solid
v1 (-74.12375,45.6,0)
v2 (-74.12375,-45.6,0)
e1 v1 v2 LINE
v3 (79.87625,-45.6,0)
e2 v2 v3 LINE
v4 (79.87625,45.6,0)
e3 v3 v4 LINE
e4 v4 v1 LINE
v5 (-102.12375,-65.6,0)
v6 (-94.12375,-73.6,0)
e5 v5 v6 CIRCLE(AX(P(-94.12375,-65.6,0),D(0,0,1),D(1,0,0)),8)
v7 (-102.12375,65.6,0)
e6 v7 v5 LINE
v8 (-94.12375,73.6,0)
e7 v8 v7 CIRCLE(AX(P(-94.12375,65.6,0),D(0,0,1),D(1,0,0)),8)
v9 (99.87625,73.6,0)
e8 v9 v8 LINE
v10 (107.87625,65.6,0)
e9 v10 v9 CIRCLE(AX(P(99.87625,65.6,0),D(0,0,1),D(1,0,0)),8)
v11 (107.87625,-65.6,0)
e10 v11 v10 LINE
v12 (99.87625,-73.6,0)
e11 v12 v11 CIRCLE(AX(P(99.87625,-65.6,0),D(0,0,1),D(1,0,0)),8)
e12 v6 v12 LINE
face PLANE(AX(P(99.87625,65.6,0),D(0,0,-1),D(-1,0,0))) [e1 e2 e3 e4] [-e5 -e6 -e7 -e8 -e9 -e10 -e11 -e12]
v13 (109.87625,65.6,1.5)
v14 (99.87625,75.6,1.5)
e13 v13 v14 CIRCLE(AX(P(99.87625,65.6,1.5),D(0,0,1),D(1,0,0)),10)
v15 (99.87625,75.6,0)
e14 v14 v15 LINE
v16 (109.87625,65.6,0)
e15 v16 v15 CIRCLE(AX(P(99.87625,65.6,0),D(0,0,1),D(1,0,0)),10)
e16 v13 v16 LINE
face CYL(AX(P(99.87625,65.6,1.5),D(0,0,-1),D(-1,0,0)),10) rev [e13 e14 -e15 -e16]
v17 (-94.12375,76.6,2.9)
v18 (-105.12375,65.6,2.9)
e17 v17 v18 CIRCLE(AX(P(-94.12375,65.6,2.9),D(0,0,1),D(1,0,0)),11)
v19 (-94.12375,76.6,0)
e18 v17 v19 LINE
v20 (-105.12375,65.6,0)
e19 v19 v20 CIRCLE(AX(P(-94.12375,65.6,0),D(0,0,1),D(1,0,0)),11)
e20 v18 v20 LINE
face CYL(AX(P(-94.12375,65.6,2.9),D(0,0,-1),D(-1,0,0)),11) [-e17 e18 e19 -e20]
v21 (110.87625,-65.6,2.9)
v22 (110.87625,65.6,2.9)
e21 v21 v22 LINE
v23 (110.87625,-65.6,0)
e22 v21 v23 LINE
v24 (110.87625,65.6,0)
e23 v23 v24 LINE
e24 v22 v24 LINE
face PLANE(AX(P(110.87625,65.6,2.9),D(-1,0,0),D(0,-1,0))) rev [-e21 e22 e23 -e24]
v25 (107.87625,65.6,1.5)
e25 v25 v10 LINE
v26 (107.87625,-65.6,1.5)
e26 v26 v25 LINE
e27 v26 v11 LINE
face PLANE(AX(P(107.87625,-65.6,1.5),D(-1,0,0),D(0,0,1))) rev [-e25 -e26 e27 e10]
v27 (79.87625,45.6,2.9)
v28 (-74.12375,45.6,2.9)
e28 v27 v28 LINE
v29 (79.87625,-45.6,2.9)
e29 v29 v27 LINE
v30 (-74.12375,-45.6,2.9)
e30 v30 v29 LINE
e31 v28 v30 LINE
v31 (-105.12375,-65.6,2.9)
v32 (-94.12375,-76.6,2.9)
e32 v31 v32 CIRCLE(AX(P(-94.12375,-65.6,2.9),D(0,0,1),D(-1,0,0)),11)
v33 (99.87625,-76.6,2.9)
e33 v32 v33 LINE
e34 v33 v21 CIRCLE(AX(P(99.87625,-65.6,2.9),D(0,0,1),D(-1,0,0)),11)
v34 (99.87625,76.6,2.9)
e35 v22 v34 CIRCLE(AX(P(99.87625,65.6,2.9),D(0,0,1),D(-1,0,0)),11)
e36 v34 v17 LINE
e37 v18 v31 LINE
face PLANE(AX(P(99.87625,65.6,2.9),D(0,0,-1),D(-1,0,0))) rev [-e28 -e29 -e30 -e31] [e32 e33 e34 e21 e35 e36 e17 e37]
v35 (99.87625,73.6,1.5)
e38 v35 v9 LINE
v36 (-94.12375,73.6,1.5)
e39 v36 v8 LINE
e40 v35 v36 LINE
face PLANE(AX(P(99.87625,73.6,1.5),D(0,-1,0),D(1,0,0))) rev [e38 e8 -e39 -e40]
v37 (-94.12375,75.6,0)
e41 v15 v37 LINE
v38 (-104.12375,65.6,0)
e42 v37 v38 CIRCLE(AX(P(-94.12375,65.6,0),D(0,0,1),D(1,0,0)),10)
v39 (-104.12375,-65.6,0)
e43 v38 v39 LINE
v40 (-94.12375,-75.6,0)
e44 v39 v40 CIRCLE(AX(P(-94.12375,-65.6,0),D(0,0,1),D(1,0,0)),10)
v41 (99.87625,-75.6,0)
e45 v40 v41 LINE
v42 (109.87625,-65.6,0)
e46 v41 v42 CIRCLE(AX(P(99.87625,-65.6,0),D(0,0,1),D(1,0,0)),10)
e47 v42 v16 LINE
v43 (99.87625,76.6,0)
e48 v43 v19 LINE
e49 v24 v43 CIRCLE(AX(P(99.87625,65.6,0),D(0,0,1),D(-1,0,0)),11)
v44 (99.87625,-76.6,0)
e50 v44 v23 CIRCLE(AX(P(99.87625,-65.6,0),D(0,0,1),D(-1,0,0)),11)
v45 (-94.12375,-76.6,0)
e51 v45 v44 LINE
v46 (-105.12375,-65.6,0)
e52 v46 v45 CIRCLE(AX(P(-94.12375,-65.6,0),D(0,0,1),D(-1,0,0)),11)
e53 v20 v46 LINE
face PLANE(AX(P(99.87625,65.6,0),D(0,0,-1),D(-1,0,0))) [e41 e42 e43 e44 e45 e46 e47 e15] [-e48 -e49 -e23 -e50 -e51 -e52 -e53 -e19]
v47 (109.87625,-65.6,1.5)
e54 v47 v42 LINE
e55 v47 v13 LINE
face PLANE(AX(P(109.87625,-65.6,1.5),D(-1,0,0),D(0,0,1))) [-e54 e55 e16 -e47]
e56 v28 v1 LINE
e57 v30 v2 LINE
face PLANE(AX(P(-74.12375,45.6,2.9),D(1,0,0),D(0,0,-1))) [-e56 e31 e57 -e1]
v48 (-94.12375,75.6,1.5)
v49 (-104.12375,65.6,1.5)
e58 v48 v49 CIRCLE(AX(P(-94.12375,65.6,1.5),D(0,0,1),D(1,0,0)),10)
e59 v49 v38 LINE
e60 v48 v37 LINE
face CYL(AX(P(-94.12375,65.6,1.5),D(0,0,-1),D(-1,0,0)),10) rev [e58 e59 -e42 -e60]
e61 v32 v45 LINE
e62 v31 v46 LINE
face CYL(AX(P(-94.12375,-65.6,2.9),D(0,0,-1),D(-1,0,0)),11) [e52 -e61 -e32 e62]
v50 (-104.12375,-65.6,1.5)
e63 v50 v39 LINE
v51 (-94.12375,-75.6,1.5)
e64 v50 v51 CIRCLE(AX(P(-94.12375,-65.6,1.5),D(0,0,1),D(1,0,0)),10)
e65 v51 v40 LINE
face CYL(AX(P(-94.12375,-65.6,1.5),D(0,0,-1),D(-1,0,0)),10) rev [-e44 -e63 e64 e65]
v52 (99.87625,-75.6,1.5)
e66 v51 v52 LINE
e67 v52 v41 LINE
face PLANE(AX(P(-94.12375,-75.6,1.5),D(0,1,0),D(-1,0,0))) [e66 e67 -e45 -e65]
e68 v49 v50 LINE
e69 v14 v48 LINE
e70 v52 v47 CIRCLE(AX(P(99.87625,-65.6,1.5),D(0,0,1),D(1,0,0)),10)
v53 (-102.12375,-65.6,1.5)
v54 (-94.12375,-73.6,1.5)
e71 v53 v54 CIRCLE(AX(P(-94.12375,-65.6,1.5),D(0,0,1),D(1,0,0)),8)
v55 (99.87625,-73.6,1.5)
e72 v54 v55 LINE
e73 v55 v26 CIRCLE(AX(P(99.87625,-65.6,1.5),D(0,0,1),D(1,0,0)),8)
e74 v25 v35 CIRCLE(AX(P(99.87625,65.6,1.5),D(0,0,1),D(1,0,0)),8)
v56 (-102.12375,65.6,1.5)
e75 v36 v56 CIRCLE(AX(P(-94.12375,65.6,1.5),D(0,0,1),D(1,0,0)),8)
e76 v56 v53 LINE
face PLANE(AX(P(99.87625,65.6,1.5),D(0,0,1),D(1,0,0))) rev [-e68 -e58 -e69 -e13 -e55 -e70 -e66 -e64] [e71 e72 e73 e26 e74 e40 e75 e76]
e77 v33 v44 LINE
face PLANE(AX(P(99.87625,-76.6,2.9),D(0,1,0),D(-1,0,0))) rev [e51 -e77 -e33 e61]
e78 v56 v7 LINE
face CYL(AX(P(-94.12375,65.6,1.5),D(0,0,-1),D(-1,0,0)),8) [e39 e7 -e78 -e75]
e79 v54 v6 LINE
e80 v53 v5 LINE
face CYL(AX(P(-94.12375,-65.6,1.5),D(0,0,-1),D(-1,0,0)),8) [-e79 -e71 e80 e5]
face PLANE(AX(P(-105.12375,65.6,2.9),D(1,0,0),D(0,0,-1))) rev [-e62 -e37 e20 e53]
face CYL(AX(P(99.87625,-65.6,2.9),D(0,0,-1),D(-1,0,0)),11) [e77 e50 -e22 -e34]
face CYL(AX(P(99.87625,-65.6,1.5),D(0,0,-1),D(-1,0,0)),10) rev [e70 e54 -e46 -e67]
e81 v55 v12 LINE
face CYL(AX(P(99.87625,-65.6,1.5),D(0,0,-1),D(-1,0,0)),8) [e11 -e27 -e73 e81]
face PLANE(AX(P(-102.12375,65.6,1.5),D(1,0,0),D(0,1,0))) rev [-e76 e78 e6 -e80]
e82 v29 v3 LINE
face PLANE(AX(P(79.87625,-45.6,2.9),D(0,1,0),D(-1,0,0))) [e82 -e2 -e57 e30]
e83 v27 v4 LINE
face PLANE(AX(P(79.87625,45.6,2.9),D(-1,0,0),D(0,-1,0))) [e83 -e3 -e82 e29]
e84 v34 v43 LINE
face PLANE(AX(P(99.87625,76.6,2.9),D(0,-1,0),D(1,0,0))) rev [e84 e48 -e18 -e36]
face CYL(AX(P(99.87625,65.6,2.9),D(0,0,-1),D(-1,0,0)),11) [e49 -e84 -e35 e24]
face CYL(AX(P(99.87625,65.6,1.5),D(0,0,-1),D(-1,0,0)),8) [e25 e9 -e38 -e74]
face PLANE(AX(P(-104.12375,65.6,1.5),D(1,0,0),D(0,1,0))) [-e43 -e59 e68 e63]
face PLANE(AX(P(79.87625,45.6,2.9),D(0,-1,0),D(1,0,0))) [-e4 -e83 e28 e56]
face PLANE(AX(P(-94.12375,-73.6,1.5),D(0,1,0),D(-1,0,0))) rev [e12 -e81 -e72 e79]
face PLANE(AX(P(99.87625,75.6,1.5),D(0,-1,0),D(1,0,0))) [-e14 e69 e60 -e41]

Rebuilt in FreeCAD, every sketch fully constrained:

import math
import FreeCAD as App
import Part
import Sketcher
from FreeCAD import Vector
Q = App.Units.Quantity

doc = App.newDocument("Part")
params = doc.addObject("Spreadsheet::Sheet", "Params")
for row, (alias, value) in enumerate([
    ("sketch1_radius", "11 mm"),
    ("sketch1_width", "194 mm"),
    ("sketch1_width2", "154 mm"),
    ("sketch1_height", "131.2 mm"),
    ("sketch1_height2", "91.2 mm"),
    ("pad1_length", "2.9 mm"),
    ("sketch2_radius", "10 mm"),
    ("sketch2_radius2", "8 mm"),
    ("sketch2_width", "194 mm"),
    ("sketch2_height", "131.2 mm"),
    ("pocket1_length", "1.5 mm"),
], start=1):
    params.set(f"A{row}", alias)
    params.set(f"B{row}", "=" + value)
    params.setAlias(f"B{row}", alias)

body = doc.addObject("PartDesign::Body", "Body")

sketch1 = doc.addObject("Sketcher::SketchObject", "Sketch")
body.addObject(sketch1)
sketch1.AttachmentSupport = (doc.XY_Plane, [""])
sketch1.MapMode = "FlatFace"
sketch1.addGeometry([
    Part.LineSegment(Vector(100, 77, 0), Vector(-94, 77, 0)),
    Part.ArcOfCircle(Part.Circle(Vector(-94, 66, 0), Vector(0, 0, 1), 11), math.radians(90), math.radians(180)),
    Part.LineSegment(Vector(-105, 66, 0), Vector(-105, -66, 0)),
    Part.ArcOfCircle(Part.Circle(Vector(-94, -66, 0), Vector(0, 0, 1), 11), math.radians(180), math.radians(270)),
    Part.LineSegment(Vector(-94, -77, 0), Vector(100, -77, 0)),
    Part.ArcOfCircle(Part.Circle(Vector(100, -66, 0), Vector(0, 0, 1), 11), math.radians(-90), math.radians(0)),
    Part.LineSegment(Vector(111, -66, 0), Vector(111, 66, 0)),
    Part.ArcOfCircle(Part.Circle(Vector(100, 66, 0), Vector(0, 0, 1), 11), math.radians(0), math.radians(90)),
    Part.LineSegment(Vector(80, -46, 0), Vector(-74, -46, 0)),
    Part.LineSegment(Vector(-74, -46, 0), Vector(-74, 46, 0)),
    Part.LineSegment(Vector(-74, 46, 0), Vector(80, 46, 0)),
    Part.LineSegment(Vector(80, 46, 0), Vector(80, -46, 0)),
], False)
sketch1.addConstraint([
    Sketcher.Constraint("Tangent", 0, 2, 1, 1),
    Sketcher.Constraint("Tangent", 1, 2, 2, 1),
    Sketcher.Constraint("Tangent", 2, 2, 3, 1),
    Sketcher.Constraint("Tangent", 3, 2, 4, 1),
    Sketcher.Constraint("Tangent", 4, 2, 5, 1),
    Sketcher.Constraint("Tangent", 5, 2, 6, 1),
    Sketcher.Constraint("Tangent", 6, 2, 7, 1),
    Sketcher.Constraint("Tangent", 7, 2, 0, 1),
    Sketcher.Constraint("Coincident", 8, 2, 9, 1),
    Sketcher.Constraint("Coincident", 9, 2, 10, 1),
    Sketcher.Constraint("Coincident", 10, 2, 11, 1),
    Sketcher.Constraint("Coincident", 11, 2, 8, 1),
    Sketcher.Constraint("Horizontal", 0),
    Sketcher.Constraint("Vertical", 2),
    Sketcher.Constraint("Horizontal", 4),
    Sketcher.Constraint("Vertical", 6),
    Sketcher.Constraint("Horizontal", 8),
    Sketcher.Constraint("Vertical", 9),
    Sketcher.Constraint("Horizontal", 10),
    Sketcher.Constraint("Vertical", 11),
    Sketcher.Constraint("Equal", 1, 3),
    Sketcher.Constraint("Equal", 3, 5),
    Sketcher.Constraint("Equal", 5, 7),
    Sketcher.Constraint("Radius", 1, Q("11 mm")),
    Sketcher.Constraint("DistanceX", 0, 2, 0, 1, Q("194 mm")),
    Sketcher.Constraint("DistanceX", 8, 2, 8, 1, Q("154 mm")),
    Sketcher.Constraint("DistanceY", 2, 2, 2, 1, Q("131.2 mm")),
    Sketcher.Constraint("DistanceY", 9, 1, 9, 2, Q("91.2 mm")),
    Sketcher.Constraint("DistanceX", 3, 3, 8, 2, Q("20 mm")),
    Sketcher.Constraint("DistanceY", 3, 3, 8, 2, Q("20 mm")),
    Sketcher.Constraint("DistanceY", -1, 1, 1, 3, Q("65.6 mm")),
    Sketcher.Constraint("DistanceX", 1, 3, -1, 1, Q("94.12375 mm")),
])
sketch1.setExpression("Constraints[23]", "Params.sketch1_radius")
sketch1.setExpression("Constraints[24]", "Params.sketch1_width")
sketch1.setExpression("Constraints[25]", "Params.sketch1_width2")
sketch1.setExpression("Constraints[26]", "Params.sketch1_height")
sketch1.setExpression("Constraints[27]", "Params.sketch1_height2")
pad1 = doc.addObject("PartDesign::Pad", "Pad")
body.addObject(pad1)
pad1.Profile = sketch1
pad1.setExpression("Length", "Params.pad1_length")

sketch2 = doc.addObject("Sketcher::SketchObject", "Sketch001")
body.addObject(sketch2)
sketch2.AttachmentSupport = (doc.XY_Plane, [""])
sketch2.MapMode = "FlatFace"
sketch2.addGeometry([
    Part.LineSegment(Vector(100, 76, 0), Vector(-94, 76, 0)),
    Part.ArcOfCircle(Part.Circle(Vector(-94, 66, 0), Vector(0, 0, 1), 10), math.radians(90), math.radians(180)),
    Part.LineSegment(Vector(-104, 66, 0), Vector(-104, -66, 0)),
    Part.ArcOfCircle(Part.Circle(Vector(-94, -66, 0), Vector(0, 0, 1), 10), math.radians(180), math.radians(270)),
    Part.LineSegment(Vector(-94, -76, 0), Vector(100, -76, 0)),
    Part.ArcOfCircle(Part.Circle(Vector(100, -66, 0), Vector(0, 0, 1), 10), math.radians(-90), math.radians(0)),
    Part.LineSegment(Vector(110, -66, 0), Vector(110, 66, 0)),
    Part.ArcOfCircle(Part.Circle(Vector(100, 66, 0), Vector(0, 0, 1), 10), math.radians(0), math.radians(90)),
    Part.LineSegment(Vector(-94, 74, 0), Vector(100, 74, 0)),
    Part.ArcOfCircle(Part.Circle(Vector(100, 66, 0), Vector(0, 0, 1), 8), math.radians(0), math.radians(90)),
    Part.LineSegment(Vector(108, 66, 0), Vector(108, -66, 0)),
    Part.ArcOfCircle(Part.Circle(Vector(100, -66, 0), Vector(0, 0, 1), 8), math.radians(-90), math.radians(0)),
    Part.LineSegment(Vector(100, -74, 0), Vector(-94, -74, 0)),
    Part.ArcOfCircle(Part.Circle(Vector(-94, -66, 0), Vector(0, 0, 1), 8), math.radians(-180), math.radians(-90)),
    Part.LineSegment(Vector(-102, -66, 0), Vector(-102, 66, 0)),
    Part.ArcOfCircle(Part.Circle(Vector(-94, 66, 0), Vector(0, 0, 1), 8), math.radians(90), math.radians(180)),
], False)
sketch2.addConstraint([
    Sketcher.Constraint("Tangent", 0, 2, 1, 1),
    Sketcher.Constraint("Tangent", 1, 2, 2, 1),
    Sketcher.Constraint("Tangent", 2, 2, 3, 1),
    Sketcher.Constraint("Tangent", 3, 2, 4, 1),
    Sketcher.Constraint("Tangent", 4, 2, 5, 1),
    Sketcher.Constraint("Tangent", 5, 2, 6, 1),
    Sketcher.Constraint("Tangent", 6, 2, 7, 1),
    Sketcher.Constraint("Tangent", 7, 2, 0, 1),
    Sketcher.Constraint("Tangent", 8, 2, 9, 2),
    Sketcher.Constraint("Tangent", 9, 1, 10, 1),
    Sketcher.Constraint("Tangent", 10, 2, 11, 2),
    Sketcher.Constraint("Tangent", 11, 1, 12, 1),
    Sketcher.Constraint("Tangent", 12, 2, 13, 2),
    Sketcher.Constraint("Tangent", 13, 1, 14, 1),
    Sketcher.Constraint("Tangent", 14, 2, 15, 2),
    Sketcher.Constraint("Tangent", 15, 1, 8, 1),
    Sketcher.Constraint("Horizontal", 0),
    Sketcher.Constraint("Vertical", 2),
    Sketcher.Constraint("Horizontal", 4),
    Sketcher.Constraint("Vertical", 6),
    Sketcher.Constraint("Horizontal", 8),
    Sketcher.Constraint("Vertical", 10),
    Sketcher.Constraint("Horizontal", 12),
    Sketcher.Constraint("Vertical", 14),
    Sketcher.Constraint("Coincident", 9, 3, 7, 3),
    Sketcher.Constraint("Coincident", 11, 3, 5, 3),
    Sketcher.Constraint("Coincident", 13, 3, 3, 3),
    Sketcher.Constraint("Equal", 1, 3),
    Sketcher.Constraint("Equal", 3, 5),
    Sketcher.Constraint("Equal", 5, 7),
    Sketcher.Constraint("Equal", 13, 15),
    Sketcher.Constraint("Radius", 1, Q("10 mm")),
    Sketcher.Constraint("Radius", 9, Q("8 mm")),
    Sketcher.Constraint("DistanceX", 0, 2, 0, 1, Q("194 mm")),
    Sketcher.Constraint("DistanceY", 2, 2, 2, 1, Q("131.2 mm")),
    Sketcher.Constraint("DistanceY", -1, 1, 1, 3, Q("65.6 mm")),
    Sketcher.Constraint("DistanceX", 1, 3, -1, 1, Q("94.12375 mm")),
])
sketch2.setExpression("Constraints[31]", "Params.sketch2_radius")
sketch2.setExpression("Constraints[32]", "Params.sketch2_radius2")
sketch2.setExpression("Constraints[33]", "Params.sketch2_width")
sketch2.setExpression("Constraints[34]", "Params.sketch2_height")
pocket1 = doc.addObject("PartDesign::Pocket", "Pocket")
body.addObject(pocket1)
pocket1.Profile = sketch2
pocket1.setExpression("Length", "Params.pocket1_length")
pocket1.Reversed = True

doc.recompute()
